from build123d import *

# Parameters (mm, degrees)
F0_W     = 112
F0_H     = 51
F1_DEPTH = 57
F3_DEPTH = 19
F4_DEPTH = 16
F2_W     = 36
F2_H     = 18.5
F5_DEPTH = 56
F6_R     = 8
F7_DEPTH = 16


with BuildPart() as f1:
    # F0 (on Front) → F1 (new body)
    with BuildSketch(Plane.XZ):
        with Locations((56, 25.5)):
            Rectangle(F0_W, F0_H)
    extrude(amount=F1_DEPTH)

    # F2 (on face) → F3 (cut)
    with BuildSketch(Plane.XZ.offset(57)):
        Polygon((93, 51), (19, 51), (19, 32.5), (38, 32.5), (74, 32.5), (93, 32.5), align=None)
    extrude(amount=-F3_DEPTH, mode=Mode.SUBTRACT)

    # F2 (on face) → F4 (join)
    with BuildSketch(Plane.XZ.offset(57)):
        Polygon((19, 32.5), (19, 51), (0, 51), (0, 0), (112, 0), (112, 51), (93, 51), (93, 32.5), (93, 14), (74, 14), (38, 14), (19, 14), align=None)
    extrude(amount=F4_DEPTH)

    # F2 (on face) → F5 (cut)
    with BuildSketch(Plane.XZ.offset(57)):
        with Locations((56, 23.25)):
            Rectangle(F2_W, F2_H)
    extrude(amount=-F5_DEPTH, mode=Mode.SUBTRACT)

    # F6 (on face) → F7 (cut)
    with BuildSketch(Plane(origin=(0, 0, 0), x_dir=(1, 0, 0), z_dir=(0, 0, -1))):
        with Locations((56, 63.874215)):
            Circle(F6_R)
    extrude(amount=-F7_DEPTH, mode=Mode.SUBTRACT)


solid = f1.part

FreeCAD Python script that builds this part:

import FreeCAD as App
import Part
import Sketcher

V = App.Vector
Q = App.Units.Quantity


def add_polygon(sketch, points):
    """Adds a closed chain of lines whose ends are joined by coincident constraints."""
    first, n = sketch.GeometryCount, len(points)
    for a, b in zip(points, points[1:] + points[:1]):
        sketch.addGeometry(Part.LineSegment(App.Vector(*a, 0), App.Vector(*b, 0)), False)
    for i in range(n):
        sketch.addConstraint(Sketcher.Constraint("Coincident", first + i, 2, first + (i + 1) % n, 1))

doc = App.newDocument("Part")
body = doc.addObject("PartDesign::Body", "Body")

sketch1 = body.newObject("Sketcher::SketchObject", "Sketch")
sketch1.AttachmentSupport = (doc.getObject("XZ_Plane"), [""])
sketch1.MapMode = "FlatFace"
add_polygon(sketch1, [(0, 51), (0, 0), (112, 0), (112, 51)])
sketch1.addConstraint([
    Sketcher.Constraint("Vertical", 0),
    Sketcher.Constraint("Horizontal", 1),
    Sketcher.Constraint("Vertical", 2),
    Sketcher.Constraint("Horizontal", 3),
    Sketcher.Constraint("Coincident", 0, 2, -1, 1),
    Sketcher.Constraint("DistanceX", 1, 1, 1, 2, Q("112 mm")),
    Sketcher.Constraint("DistanceY", 0, 2, 0, 1, Q("51 mm")),
])
pad1 = body.newObject("PartDesign::Pad", "Pad")
pad1.Profile = sketch1
pad1.Length = 57

sketch2 = body.newObject("Sketcher::SketchObject", "Sketch001")
sketch2.AttachmentSupport = (doc.getObject("XZ_Plane"), [""])
sketch2.MapMode = "FlatFace"
sketch2.AttachmentOffset = App.Placement(V(0, 0, 57), App.Rotation())
add_polygon(sketch2, [(93, 51), (19, 51), (19, 32), (93, 32)])
sketch2.addConstraint([
    Sketcher.Constraint("Horizontal", 0),
    Sketcher.Constraint("Vertical", 1),
    Sketcher.Constraint("Horizontal", 2),
    Sketcher.Constraint("Vertical", 3),
    Sketcher.Constraint("DistanceX", 0, 2, 0, 1, Q("74 mm")),
    Sketcher.Constraint("DistanceY", 1, 2, 1, 1, Q("18.5 mm")),
    Sketcher.Constraint("DistanceX", -1, 1, 0, 2, Q("19 mm")),
    Sketcher.Constraint("DistanceY", -1, 1, 0, 2, Q("51 mm")),
])
pocket1 = body.newObject("PartDesign::Pocket", "Pocket")
pocket1.Profile = sketch2
pocket1.Length = 19

sketch3 = body.newObject("Sketcher::SketchObject", "Sketch002")
sketch3.AttachmentSupport = (doc.getObject("XZ_Plane"), [""])
sketch3.MapMode = "FlatFace"
sketch3.AttachmentOffset = App.Placement(V(0, 0, 57), App.Rotation())
add_polygon(sketch3, [(19, 51), (0, 51), (0, 0), (112, 0), (112, 51), (93, 51), (93, 14), (19, 14)])
sketch3.addConstraint([
    Sketcher.Constraint("Horizontal", 0),
    Sketcher.Constraint("Vertical", 1),
    Sketcher.Constraint("Horizontal", 2),
    Sketcher.Constraint("Vertical", 3),
    Sketcher.Constraint("Horizontal", 4),
    Sketcher.Constraint("Vertical", 5),
    Sketcher.Constraint("Horizontal", 6),
    Sketcher.Constraint("Vertical", 7),
    Sketcher.Constraint("Coincident", 1, 2, -1, 1),
    Sketcher.Constraint("Horizontal", 0, 2, 3, 2),
    Sketcher.Constraint("Equal", 0, 4),
    Sketcher.Constraint("DistanceX", 0, 2, 0, 1, Q("19 mm")),
    Sketcher.Constraint("DistanceX", 2, 1, 2, 2, Q("112 mm")),
    Sketcher.Constraint("DistanceY", 1, 2, 1, 1, Q("51 mm")),
    Sketcher.Constraint("DistanceY", 5, 2, 5, 1, Q("37 mm")),
])
pad2 = body.newObject("PartDesign::Pad", "Pad001")
pad2.Profile = sketch3
pad2.Length = 16

sketch4 = body.newObject("Sketcher::SketchObject", "Sketch003")
sketch4.AttachmentSupport = (doc.getObject("XZ_Plane"), [""])
sketch4.MapMode = "FlatFace"
sketch4.AttachmentOffset = App.Placement(V(0, 0, 57), App.Rotation())
add_polygon(sketch4, [(38, 32), (38, 14), (74, 14), (74, 32)])
sketch4.addConstraint([
    Sketcher.Constraint("Vertical", 0),
    Sketcher.Constraint("Horizontal", 1),
    Sketcher.Constraint("Vertical", 2),
    Sketcher.Constraint("Horizontal", 3),
    Sketcher.Constraint("DistanceX", 1, 1, 1, 2, Q("36 mm")),
    Sketcher.Constraint("DistanceY", 0, 2, 0, 1, Q("18.5 mm")),
    Sketcher.Constraint("DistanceX", -1, 1, 0, 2, Q("38 mm")),
    Sketcher.Constraint("DistanceY", -1, 1, 0, 2, Q("14 mm")),
])
pocket2 = body.newObject("PartDesign::Pocket", "Pocket001")
pocket2.Profile = sketch4
pocket2.Length = 56

sketch5 = body.newObject("Sketcher::SketchObject", "Sketch004")
sketch5.AttachmentSupport = (doc.getObject("XY_Plane"), [""])
sketch5.MapMode = "FlatFace"
sketch5.addGeometry(Part.Circle(V(56, -64, 0), V(0, 0, 1), 8), False)
sketch5.addConstraint([
    Sketcher.Constraint("Diameter", 0, Q("16 mm")),
    Sketcher.Constraint("DistanceX", -1, 1, 0, 3, Q("56 mm")),
    Sketcher.Constraint("DistanceY", 0, 3, -1, 1, Q("63.874215 mm")),
])
pocket3 = body.newObject("PartDesign::Pocket", "Pocket002")
pocket3.Profile = sketch5
pocket3.Length = 16
pocket3.Reversed = True

doc.recompute()
